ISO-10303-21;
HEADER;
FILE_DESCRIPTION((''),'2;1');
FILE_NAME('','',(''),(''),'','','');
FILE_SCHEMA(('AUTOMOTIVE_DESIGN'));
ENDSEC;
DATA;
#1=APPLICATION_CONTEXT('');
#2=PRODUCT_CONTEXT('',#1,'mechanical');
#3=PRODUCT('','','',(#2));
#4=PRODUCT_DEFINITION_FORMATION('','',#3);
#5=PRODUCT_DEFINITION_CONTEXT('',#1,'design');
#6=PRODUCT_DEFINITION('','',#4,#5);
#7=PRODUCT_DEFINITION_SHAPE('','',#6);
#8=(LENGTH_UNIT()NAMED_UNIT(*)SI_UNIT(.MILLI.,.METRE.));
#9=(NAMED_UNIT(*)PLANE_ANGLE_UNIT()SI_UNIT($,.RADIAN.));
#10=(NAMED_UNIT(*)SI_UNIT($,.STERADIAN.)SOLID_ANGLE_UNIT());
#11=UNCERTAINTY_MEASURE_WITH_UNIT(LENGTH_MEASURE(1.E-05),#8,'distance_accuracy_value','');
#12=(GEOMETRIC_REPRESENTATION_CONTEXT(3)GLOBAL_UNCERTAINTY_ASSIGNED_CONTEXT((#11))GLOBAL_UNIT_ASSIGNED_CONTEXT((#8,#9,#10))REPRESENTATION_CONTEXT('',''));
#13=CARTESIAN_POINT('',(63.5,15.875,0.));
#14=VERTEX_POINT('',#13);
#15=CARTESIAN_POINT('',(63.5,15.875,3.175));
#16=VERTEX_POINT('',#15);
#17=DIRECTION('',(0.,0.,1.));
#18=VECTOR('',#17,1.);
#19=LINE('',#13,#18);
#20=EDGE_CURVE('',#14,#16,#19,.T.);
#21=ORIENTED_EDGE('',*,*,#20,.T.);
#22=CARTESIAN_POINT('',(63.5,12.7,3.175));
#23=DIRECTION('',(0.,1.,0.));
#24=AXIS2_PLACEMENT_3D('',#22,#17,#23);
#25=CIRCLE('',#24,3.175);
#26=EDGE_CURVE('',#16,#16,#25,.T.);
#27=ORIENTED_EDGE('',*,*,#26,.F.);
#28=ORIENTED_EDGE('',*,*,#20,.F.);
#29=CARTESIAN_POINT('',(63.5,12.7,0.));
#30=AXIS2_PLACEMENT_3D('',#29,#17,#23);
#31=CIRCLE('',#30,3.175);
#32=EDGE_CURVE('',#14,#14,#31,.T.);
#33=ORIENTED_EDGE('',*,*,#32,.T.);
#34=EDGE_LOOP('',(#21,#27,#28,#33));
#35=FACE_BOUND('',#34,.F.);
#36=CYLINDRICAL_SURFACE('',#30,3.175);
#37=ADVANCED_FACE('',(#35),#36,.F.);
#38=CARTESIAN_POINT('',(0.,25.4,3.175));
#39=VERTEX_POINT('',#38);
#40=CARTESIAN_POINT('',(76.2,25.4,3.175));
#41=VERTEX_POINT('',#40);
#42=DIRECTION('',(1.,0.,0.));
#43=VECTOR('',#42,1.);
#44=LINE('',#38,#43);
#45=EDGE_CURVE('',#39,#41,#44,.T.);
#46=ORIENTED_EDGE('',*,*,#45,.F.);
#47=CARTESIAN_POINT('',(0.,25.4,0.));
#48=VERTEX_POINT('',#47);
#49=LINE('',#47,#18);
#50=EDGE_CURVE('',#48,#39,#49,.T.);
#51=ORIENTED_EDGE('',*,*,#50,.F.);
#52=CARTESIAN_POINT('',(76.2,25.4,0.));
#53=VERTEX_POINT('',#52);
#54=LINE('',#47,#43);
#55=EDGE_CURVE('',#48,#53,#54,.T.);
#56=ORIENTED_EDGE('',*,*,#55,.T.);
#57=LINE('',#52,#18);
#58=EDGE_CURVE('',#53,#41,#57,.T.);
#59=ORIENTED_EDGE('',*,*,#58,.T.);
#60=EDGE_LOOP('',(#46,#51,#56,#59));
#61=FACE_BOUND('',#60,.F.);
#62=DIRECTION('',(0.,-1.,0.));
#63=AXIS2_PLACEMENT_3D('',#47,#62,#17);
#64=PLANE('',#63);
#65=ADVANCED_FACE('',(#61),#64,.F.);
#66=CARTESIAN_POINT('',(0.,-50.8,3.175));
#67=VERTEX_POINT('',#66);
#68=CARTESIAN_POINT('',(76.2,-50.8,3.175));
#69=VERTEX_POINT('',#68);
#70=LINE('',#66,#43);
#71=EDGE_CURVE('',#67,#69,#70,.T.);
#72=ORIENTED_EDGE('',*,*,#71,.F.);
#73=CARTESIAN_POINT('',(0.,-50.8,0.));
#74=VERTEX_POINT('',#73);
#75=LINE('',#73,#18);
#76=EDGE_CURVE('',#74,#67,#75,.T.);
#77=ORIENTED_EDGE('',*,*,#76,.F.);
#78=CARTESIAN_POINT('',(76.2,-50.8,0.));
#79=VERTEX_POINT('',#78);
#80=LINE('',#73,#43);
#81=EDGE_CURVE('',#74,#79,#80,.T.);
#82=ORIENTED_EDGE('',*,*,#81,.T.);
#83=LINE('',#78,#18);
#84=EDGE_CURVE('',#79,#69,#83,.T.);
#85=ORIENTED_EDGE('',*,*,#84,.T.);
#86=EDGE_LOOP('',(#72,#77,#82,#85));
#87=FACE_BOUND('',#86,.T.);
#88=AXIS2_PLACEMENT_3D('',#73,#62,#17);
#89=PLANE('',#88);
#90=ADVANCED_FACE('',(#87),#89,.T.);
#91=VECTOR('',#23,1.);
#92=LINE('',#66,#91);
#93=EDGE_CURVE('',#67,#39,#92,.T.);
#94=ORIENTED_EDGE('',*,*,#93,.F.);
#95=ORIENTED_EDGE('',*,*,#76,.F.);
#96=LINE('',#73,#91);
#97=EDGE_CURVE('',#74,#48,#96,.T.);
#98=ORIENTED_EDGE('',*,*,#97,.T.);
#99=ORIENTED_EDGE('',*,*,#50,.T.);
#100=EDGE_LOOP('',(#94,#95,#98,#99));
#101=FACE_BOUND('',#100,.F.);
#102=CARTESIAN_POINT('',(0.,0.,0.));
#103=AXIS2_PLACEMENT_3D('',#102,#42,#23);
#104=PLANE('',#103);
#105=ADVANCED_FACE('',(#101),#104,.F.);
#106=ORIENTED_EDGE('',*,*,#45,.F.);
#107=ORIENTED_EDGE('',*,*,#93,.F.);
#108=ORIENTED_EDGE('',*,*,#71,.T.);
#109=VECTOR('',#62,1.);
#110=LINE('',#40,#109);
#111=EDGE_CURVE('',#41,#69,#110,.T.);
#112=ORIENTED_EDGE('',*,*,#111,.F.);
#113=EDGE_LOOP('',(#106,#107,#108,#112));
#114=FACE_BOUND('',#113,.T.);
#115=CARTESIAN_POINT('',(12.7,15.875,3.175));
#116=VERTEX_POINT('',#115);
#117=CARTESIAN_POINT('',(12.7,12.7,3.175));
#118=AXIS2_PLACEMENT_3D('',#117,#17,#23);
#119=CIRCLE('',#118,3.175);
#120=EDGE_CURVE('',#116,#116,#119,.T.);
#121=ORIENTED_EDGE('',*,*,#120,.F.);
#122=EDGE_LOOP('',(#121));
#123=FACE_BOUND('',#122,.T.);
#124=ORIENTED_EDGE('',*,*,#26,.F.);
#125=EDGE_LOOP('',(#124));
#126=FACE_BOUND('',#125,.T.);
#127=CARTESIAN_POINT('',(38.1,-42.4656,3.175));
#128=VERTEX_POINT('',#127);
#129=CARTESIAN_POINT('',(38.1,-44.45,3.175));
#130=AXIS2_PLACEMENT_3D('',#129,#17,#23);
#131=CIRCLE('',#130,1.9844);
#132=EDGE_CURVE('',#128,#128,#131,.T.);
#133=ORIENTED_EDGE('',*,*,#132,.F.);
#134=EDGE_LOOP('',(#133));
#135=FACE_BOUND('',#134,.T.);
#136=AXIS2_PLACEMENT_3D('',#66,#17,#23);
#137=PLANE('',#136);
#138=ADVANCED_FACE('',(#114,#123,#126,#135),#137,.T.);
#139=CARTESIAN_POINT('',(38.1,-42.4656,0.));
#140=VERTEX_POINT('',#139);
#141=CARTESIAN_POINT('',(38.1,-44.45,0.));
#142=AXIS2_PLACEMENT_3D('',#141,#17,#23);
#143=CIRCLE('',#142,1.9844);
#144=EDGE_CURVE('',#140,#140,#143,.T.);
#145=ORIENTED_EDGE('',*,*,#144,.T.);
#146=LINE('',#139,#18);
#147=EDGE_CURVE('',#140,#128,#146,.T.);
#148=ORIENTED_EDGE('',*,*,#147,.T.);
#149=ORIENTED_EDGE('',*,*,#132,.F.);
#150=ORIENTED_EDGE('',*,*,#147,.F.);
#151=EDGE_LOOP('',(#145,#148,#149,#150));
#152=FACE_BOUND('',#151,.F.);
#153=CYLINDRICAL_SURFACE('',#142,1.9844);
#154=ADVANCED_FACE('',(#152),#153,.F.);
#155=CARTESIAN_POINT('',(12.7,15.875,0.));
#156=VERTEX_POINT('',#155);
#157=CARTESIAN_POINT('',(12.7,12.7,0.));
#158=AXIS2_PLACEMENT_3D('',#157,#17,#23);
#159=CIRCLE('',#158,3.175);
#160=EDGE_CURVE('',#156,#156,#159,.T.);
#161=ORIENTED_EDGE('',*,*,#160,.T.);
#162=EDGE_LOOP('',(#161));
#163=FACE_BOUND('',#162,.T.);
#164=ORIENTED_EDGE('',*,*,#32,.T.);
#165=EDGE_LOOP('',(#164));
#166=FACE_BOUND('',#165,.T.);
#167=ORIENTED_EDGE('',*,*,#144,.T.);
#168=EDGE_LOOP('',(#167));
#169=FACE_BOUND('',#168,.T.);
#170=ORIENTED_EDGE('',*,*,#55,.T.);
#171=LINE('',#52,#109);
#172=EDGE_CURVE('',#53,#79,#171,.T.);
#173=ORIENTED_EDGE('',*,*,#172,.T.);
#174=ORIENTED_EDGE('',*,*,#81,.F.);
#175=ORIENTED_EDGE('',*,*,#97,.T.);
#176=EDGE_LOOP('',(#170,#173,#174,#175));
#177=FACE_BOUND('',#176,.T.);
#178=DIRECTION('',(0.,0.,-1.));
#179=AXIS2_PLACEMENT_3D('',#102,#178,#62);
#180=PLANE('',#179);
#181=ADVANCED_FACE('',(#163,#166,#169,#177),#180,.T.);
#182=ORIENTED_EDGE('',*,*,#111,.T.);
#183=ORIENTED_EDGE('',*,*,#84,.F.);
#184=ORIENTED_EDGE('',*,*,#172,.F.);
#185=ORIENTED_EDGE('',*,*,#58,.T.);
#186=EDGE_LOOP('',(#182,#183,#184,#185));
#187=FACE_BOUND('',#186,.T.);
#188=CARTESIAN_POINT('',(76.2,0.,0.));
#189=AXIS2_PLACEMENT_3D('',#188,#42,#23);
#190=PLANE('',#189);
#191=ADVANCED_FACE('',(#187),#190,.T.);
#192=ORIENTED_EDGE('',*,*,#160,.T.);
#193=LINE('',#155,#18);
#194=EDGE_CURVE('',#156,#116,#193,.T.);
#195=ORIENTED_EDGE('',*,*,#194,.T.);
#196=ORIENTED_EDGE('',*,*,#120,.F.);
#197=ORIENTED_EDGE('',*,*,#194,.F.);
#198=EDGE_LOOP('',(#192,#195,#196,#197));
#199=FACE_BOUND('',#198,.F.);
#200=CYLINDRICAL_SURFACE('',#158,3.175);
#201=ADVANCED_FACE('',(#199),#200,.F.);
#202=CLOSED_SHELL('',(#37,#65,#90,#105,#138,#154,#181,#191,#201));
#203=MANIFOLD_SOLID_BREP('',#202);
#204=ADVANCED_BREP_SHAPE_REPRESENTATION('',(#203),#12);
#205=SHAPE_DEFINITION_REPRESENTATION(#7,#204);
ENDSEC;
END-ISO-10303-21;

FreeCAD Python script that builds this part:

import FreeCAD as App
import Part
import Sketcher

V = App.Vector
Q = App.Units.Quantity


def add_polygon(sketch, points):
    """Adds a closed chain of lines whose ends are joined by coincident constraints."""
    first, n = sketch.GeometryCount, len(points)
    for a, b in zip(points, points[1:] + points[:1]):
        sketch.addGeometry(Part.LineSegment(App.Vector(*a, 0), App.Vector(*b, 0)), False)
    for i in range(n):
        sketch.addConstraint(Sketcher.Constraint("Coincident", first + i, 2, first + (i + 1) % n, 1))

doc = App.newDocument("Part")
params = doc.addObject("Spreadsheet::Sheet", "Params")
for row, (alias, value) in enumerate([
    ("sketch1_height", "0.125 in"),
    ("pad1_length", "3 in"),
    ("sketch2_diameter", "0.25 in"),
    ("hole_diameter", "0.25 in"),
    ("sketch3_diameter", "0.156252 in"),
    ("hole2_diameter", "0.156252 in"),
], start=1):
    params.set(f"A{row}", alias)
    params.set(f"B{row}", "=" + value)
    params.setAlias(f"B{row}", alias)

body = doc.addObject("PartDesign::Body", "Body")

sketch1 = body.newObject("Sketcher::SketchObject", "Sketch")
sketch1.AttachmentSupport = (doc.getObject("YZ_Plane"), [""])
sketch1.MapMode = "FlatFace"
add_polygon(sketch1, [(-50.8, 0), (25.4, 0), (25.4, 3.2), (-50.8, 3.2)])
sketch1.addConstraint([
    Sketcher.Constraint("Horizontal", 0),
    Sketcher.Constraint("Vertical", 1),
    Sketcher.Constraint("Horizontal", 2),
    Sketcher.Constraint("Vertical", 3),
    Sketcher.Constraint("PointOnObject", 0, 2, -1),
    Sketcher.Constraint("DistanceX", -1, 1, 0, 2, Q("1 in")),
    Sketcher.Constraint("DistanceX", 2, 2, -1, 1, Q("2 in")),
    Sketcher.Constraint("DistanceY", 1, 1, 1, 2, Q("0.125 in")),
])
sketch1.setExpression("Constraints[11]", "Params.sketch1_height")
pad1 = body.newObject("PartDesign::Pad", "Pad")
pad1.Profile = sketch1
pad1.setExpression("Length", "Params.pad1_length")

sketch2 = body.newObject("Sketcher::SketchObject", "Sketch001")
sketch2.AttachmentSupport = (doc.getObject("XY_Plane"), [""])
sketch2.MapMode = "FlatFace"
sketch2.addGeometry([
    Part.Circle(V(63.5, 12.7, 0), V(0, 0, 1), 3.2),
    Part.Circle(V(12.7, 12.7, 0), V(0, 0, 1), 3.2),
], False)
sketch2.addConstraint([
    Sketcher.Constraint("Equal", 0, 1),
    Sketcher.Constraint("Horizontal", 0, 3, 1, 3),
    Sketcher.Constraint("Diameter", 0, Q("0.25 in")),
    Sketcher.Constraint("DistanceX", 1, 3, 0, 3, Q("2 in")),
    Sketcher.Constraint("DistanceX", -1, 1, 0, 3, Q("2.5 in")),
    Sketcher.Constraint("DistanceY", -1, 1, 0, 3, Q("0.5 in")),
])
sketch2.setExpression("Constraints[2]", "Params.sketch2_diameter")
doc.recompute()
hole = body.newObject("PartDesign::Hole", "Hole")
hole.Profile = sketch2
hole.ThreadType = "None"
hole.setExpression("Diameter", "Params.hole_diameter")
hole.DepthType = "ThroughAll"
hole.Reversed = True

sketch3 = body.newObject("Sketcher::SketchObject", "Sketch002")
sketch3.AttachmentSupport = (doc.getObject("XY_Plane"), [""])
sketch3.MapMode = "FlatFace"
sketch3.addGeometry(Part.Circle(V(38.1, -44.5, 0), V(0, 0, 1), 2), False)
sketch3.addConstraint([
    Sketcher.Constraint("Diameter", 0, Q("0.156252 in")),
    Sketcher.Constraint("DistanceX", -1, 1, 0, 3, Q("1.5 in")),
    Sketcher.Constraint("DistanceY", 0, 3, -1, 1, Q("1.75 in")),
])
sketch3.setExpression("Constraints[0]", "Params.sketch3_diameter")
doc.recompute()
hole2 = body.newObject("PartDesign::Hole", "Hole001")
hole2.Profile = sketch3
hole2.ThreadType = "None"
hole2.setExpression("Diameter", "Params.hole2_diameter")
hole2.DepthType = "ThroughAll"
hole2.Reversed = True

doc.recompute()
